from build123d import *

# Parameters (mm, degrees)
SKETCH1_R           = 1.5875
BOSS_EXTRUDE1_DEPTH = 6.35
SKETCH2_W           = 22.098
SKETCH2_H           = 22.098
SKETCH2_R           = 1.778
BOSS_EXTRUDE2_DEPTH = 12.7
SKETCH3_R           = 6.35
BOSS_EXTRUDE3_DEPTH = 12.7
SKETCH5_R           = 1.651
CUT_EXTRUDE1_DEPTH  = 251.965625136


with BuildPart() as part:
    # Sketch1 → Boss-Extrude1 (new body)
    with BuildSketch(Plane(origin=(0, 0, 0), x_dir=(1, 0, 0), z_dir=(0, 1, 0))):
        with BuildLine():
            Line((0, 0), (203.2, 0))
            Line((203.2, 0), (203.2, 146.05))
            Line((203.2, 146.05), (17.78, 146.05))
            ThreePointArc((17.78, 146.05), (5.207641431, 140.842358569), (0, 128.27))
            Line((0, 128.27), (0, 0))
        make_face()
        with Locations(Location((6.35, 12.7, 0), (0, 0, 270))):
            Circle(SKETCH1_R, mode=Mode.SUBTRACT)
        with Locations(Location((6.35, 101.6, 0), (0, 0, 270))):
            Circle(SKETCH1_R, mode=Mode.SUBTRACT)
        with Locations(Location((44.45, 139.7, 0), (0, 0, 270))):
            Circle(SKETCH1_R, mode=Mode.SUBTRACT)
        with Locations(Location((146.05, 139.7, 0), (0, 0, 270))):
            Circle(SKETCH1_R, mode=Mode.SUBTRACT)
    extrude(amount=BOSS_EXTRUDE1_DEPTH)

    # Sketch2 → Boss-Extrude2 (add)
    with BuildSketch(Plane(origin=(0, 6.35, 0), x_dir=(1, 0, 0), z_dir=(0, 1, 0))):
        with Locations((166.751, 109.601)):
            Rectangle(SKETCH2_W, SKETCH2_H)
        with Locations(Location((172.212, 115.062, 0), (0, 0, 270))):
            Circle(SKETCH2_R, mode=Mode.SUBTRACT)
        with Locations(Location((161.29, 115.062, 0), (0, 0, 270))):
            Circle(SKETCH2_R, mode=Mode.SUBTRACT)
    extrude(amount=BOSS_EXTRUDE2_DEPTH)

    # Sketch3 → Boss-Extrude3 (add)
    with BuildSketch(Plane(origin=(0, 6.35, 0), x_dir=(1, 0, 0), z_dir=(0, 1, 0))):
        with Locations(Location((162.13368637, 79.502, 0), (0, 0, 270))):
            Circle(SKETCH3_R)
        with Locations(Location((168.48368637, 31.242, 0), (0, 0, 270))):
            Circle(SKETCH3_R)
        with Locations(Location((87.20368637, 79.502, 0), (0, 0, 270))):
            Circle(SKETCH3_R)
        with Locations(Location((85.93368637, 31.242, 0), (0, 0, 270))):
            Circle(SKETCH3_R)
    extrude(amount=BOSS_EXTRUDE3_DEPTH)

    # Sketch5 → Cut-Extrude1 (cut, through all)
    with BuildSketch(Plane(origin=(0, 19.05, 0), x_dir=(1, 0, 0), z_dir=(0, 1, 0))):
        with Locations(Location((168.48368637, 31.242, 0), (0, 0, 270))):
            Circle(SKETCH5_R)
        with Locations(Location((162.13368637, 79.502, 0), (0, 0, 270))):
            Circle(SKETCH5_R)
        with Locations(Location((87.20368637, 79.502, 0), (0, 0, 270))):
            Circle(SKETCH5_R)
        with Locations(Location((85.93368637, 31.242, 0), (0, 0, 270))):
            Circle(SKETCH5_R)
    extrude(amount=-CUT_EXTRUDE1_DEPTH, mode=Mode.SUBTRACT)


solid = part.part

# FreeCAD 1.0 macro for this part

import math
import FreeCAD as App
import Part
import Sketcher

V = App.Vector
Q = App.Units.Quantity


def add_polygon(sketch, points):
    """Adds a closed chain of lines whose ends are joined by coincident constraints."""
    first, n = sketch.GeometryCount, len(points)
    for a, b in zip(points, points[1:] + points[:1]):
        sketch.addGeometry(Part.LineSegment(App.Vector(*a, 0), App.Vector(*b, 0)), False)
    for i in range(n):
        sketch.addConstraint(Sketcher.Constraint("Coincident", first + i, 2, first + (i + 1) % n, 1))

doc = App.newDocument("Part")
params = doc.addObject("Spreadsheet::Sheet", "Params")
for row, (alias, value) in enumerate([
    ("sketch1_radius", "0.7 in"),
    ("sketch1_width", "8 in"),
    ("sketch1_diameter", "0.125 in"),
    ("sketch1_height", "5.75 in"),
    ("pad1_length", "0.25 in"),
    ("sketch2_diameter", "0.14 in"),
    ("sketch2_width", "0.87 in"),
    ("pad2_length", "0.5 in"),
    ("sketch3_diameter", "0.5 in"),
    ("pad3_length", "0.5 in"),
    ("sketch4_diameter", "0.13 in"),
], start=1):
    params.set(f"A{row}", alias)
    params.set(f"B{row}", "=" + value)
    params.setAlias(f"B{row}", alias)

body = doc.addObject("PartDesign::Body", "Body")

sketch1 = body.newObject("Sketcher::SketchObject", "Sketch")
sketch1.AttachmentSupport = (doc.getObject("XZ_Plane"), [""])
sketch1.MapMode = "FlatFace"
sketch1.addGeometry([
    Part.LineSegment(V(0, 0, 0), V(203.2, 0, 0)),
    Part.LineSegment(V(203.2, 0, 0), V(203.2, -146.05, 0)),
    Part.LineSegment(V(203.2, -146.05, 0), V(17.78, -146.05, 0)),
    Part.ArcOfCircle(Part.Circle(V(17.78, -128.27, 0), V(0, 0, 1), 17.78), math.radians(-180), math.radians(-90)),
    Part.LineSegment(V(0, -128.27, 0), V(0, 0, 0)),
    Part.Circle(V(6.35, -12.7, 0), V(0, 0, 1), 1.5875),
    Part.Circle(V(6.35, -101.6, 0), V(0, 0, 1), 1.5875),
    Part.Circle(V(44.45, -139.7, 0), V(0, 0, 1), 1.5875),
    Part.Circle(V(146.05, -139.7, 0), V(0, 0, 1), 1.5875),
], False)
sketch1.addConstraint([
    Sketcher.Constraint("Coincident", 0, 2, 1, 1),
    Sketcher.Constraint("Coincident", 1, 2, 2, 1),
    Sketcher.Constraint("Tangent", 2, 2, 3, 2),
    Sketcher.Constraint("Tangent", 3, 1, 4, 1),
    Sketcher.Constraint("Coincident", 4, 2, 0, 1),
    Sketcher.Constraint("Horizontal", 0),
    Sketcher.Constraint("Vertical", 1),
    Sketcher.Constraint("Horizontal", 2),
    Sketcher.Constraint("Vertical", 4),
    Sketcher.Constraint("Coincident", 4, 2, -1, 1),
    Sketcher.Constraint("Equal", 5, 6),
    Sketcher.Constraint("Equal", 6, 7),
    Sketcher.Constraint("Equal", 7, 8),
    Sketcher.Constraint("Horizontal", 7, 3, 8, 3),
    Sketcher.Constraint("Vertical", 5, 3, 6, 3),
    Sketcher.Constraint("Radius", 3, Q("0.7 in")),
    Sketcher.Constraint("DistanceX", 0, 1, 0, 2, Q("8 in")),
    Sketcher.Constraint("Diameter", 5, Q("0.125 in")),
    Sketcher.Constraint("DistanceY", 6, 3, -1, 1, Q("4 in")),
    Sketcher.Constraint("DistanceY", 7, 3, 5, 3, Q("5 in")),
    Sketcher.Constraint("DistanceX", 7, 3, 8, 3, Q("4 in")),
    Sketcher.Constraint("DistanceY", 1, 2, 1, 1, Q("5.75 in")),
    Sketcher.Constraint("DistanceY", 5, 3, -1, 1, Q("0.5 in")),
    Sketcher.Constraint("DistanceX", 6, 3, 7, 3, Q("1.5 in")),
    Sketcher.Constraint("DistanceX", -1, 1, 5, 3, Q("0.25 in")),
])
sketch1.setExpression("Constraints[15]", "Params.sketch1_radius")
sketch1.setExpression("Constraints[16]", "Params.sketch1_width")
sketch1.setExpression("Constraints[17]", "Params.sketch1_diameter")
sketch1.setExpression("Constraints[21]", "Params.sketch1_height")
pad1 = body.newObject("PartDesign::Pad", "Pad")
pad1.Profile = sketch1
pad1.setExpression("Length", "Params.pad1_length")
pad1.Reversed = True

sketch2 = body.newObject("Sketcher::SketchObject", "Sketch001")
sketch2.AttachmentSupport = (doc.getObject("XZ_Plane"), [""])
sketch2.MapMode = "FlatFace"
sketch2.AttachmentOffset = App.Placement(V(0, 0, -0.25 * 25.4), App.Rotation())
add_polygon(sketch2, [(155.702, -120.65), (155.702, -98.552), (177.8, -98.552), (177.8, -120.65)])
sketch2.addGeometry(Part.Circle(V(161.29, -115.062, 0), V(0, 0, 1), 1.778), False)
sketch2.addGeometry(Part.Circle(V(172.212, -115.062, 0), V(0, 0, 1), 1.778), False)
sketch2.addConstraint([
    Sketcher.Constraint("Vertical", 0),
    Sketcher.Constraint("Horizontal", 1),
    Sketcher.Constraint("Vertical", 2),
    Sketcher.Constraint("Horizontal", 3),
    Sketcher.Constraint("Equal", 4, 5),
    Sketcher.Constraint("Horizontal", 4, 3, 5, 3),
    Sketcher.Constraint("Equal", 3, 0),
    Sketcher.Constraint("Diameter", 4, Q("0.14 in")),
    Sketcher.Constraint("DistanceX", -1, 1, 1, 2, Q("7 in")),
    Sketcher.Constraint("DistanceX", 1, 1, 1, 2, Q("0.87 in")),
    Sketcher.Constraint("DistanceX", -1, 1, 4, 3, Q("6.35 in")),
    Sketcher.Constraint("DistanceY", 4, 3, -1, 1, Q("4.53 in")),
    Sketcher.Constraint("DistanceX", -1, 1, 5, 3, Q("6.78 in")),
    Sketcher.Constraint("DistanceY", 0, 2, -1, 1, Q("3.88 in")),
])
sketch2.setExpression("Constraints[11]", "Params.sketch2_diameter")
sketch2.setExpression("Constraints[13]", "Params.sketch2_width")
pad2 = body.newObject("PartDesign::Pad", "Pad001")
pad2.Profile = sketch2
pad2.setExpression("Length", "Params.pad2_length")
pad2.Reversed = True

sketch3 = body.newObject("Sketcher::SketchObject", "Sketch002")
sketch3.AttachmentSupport = (doc.getObject("XZ_Plane"), [""])
sketch3.MapMode = "FlatFace"
sketch3.AttachmentOffset = App.Placement(V(0, 0, -0.25 * 25.4), App.Rotation())
sketch3.addGeometry([
    Part.Circle(V(162.133686, -79.502, 0), V(0, 0, 1), 6.35),
    Part.Circle(V(168.483686, -31.242, 0), V(0, 0, 1), 6.35),
    Part.Circle(V(87.203686, -79.502, 0), V(0, 0, 1), 6.35),
    Part.Circle(V(85.933686, -31.242, 0), V(0, 0, 1), 6.35),
], False)
sketch3.addConstraint([
    Sketcher.Constraint("Equal", 0, 1),
    Sketcher.Constraint("Equal", 1, 2),
    Sketcher.Constraint("Equal", 2, 3),
    Sketcher.Constraint("Horizontal", 0, 3, 2, 3),
    Sketcher.Constraint("Horizontal", 1, 3, 3, 3),
    Sketcher.Constraint("Diameter", 0, Q("0.5 in")),
    Sketcher.Constraint("DistanceX", 3, 3, 0, 3, Q("3 in")),
    Sketcher.Constraint("DistanceY", 0, 3, 1, 3, Q("1.9 in")),
    Sketcher.Constraint("DistanceX", 2, 3, 1, 3, Q("3.2 in")),
    Sketcher.Constraint("DistanceY", 0, 3, -1, 1, Q("3.13 in")),
    Sketcher.Constraint("DistanceX", 0, 3, 1, 3, Q("0.25 in")),
    Sketcher.Constraint("DistanceX", -1, 1, 0, 3, Q("162.133686 mm")),
])
sketch3.setExpression("Constraints[5]", "Params.sketch3_diameter")
pad3 = body.newObject("PartDesign::Pad", "Pad002")
pad3.Profile = sketch3
pad3.setExpression("Length", "Params.pad3_length")
pad3.Reversed = True

sketch4 = body.newObject("Sketcher::SketchObject", "Sketch003")
sketch4.AttachmentSupport = (doc.getObject("XZ_Plane"), [""])
sketch4.MapMode = "FlatFace"
sketch4.AttachmentOffset = App.Placement(V(0, 0, -0.75 * 25.4), App.Rotation())
sketch4.addGeometry([
    Part.Circle(V(168.483686, -31.242, 0), V(0, 0, 1), 1.651),
    Part.Circle(V(162.133686, -79.502, 0), V(0, 0, 1), 1.651),
    Part.Circle(V(87.203686, -79.502, 0), V(0, 0, 1), 1.651),
    Part.Circle(V(85.933686, -31.242, 0), V(0, 0, 1), 1.651),
], False)
sketch4.addConstraint([
    Sketcher.Constraint("Equal", 0, 1),
    Sketcher.Constraint("Equal", 1, 2),
    Sketcher.Constraint("Equal", 2, 3),
    Sketcher.Constraint("Horizontal", 1, 3, 2, 3),
    Sketcher.Constraint("Horizontal", 0, 3, 3, 3),
    Sketcher.Constraint("Diameter", 0, Q("0.13 in")),
    Sketcher.Constraint("DistanceX", 3, 3, 1, 3, Q("3 in")),
    Sketcher.Constraint("DistanceY", 1, 3, 0, 3, Q("1.9 in")),
    Sketcher.Constraint("DistanceX", 2, 3, 0, 3, Q("3.2 in")),
    Sketcher.Constraint("DistanceY", 0, 3, -1, 1, Q("1.23 in")),
    Sketcher.Constraint("DistanceX", 1, 3, 0, 3, Q("0.25 in")),
    Sketcher.Constraint("DistanceX", -1, 1, 0, 3, Q("168.483686 mm")),
])
sketch4.setExpression("Constraints[5]", "Params.sketch4_diameter")
pocket1 = body.newObject("PartDesign::Pocket", "Pocket")
pocket1.Profile = sketch4
pocket1.Type = "ThroughAll"
pocket1.Reversed = True

doc.recompute()
